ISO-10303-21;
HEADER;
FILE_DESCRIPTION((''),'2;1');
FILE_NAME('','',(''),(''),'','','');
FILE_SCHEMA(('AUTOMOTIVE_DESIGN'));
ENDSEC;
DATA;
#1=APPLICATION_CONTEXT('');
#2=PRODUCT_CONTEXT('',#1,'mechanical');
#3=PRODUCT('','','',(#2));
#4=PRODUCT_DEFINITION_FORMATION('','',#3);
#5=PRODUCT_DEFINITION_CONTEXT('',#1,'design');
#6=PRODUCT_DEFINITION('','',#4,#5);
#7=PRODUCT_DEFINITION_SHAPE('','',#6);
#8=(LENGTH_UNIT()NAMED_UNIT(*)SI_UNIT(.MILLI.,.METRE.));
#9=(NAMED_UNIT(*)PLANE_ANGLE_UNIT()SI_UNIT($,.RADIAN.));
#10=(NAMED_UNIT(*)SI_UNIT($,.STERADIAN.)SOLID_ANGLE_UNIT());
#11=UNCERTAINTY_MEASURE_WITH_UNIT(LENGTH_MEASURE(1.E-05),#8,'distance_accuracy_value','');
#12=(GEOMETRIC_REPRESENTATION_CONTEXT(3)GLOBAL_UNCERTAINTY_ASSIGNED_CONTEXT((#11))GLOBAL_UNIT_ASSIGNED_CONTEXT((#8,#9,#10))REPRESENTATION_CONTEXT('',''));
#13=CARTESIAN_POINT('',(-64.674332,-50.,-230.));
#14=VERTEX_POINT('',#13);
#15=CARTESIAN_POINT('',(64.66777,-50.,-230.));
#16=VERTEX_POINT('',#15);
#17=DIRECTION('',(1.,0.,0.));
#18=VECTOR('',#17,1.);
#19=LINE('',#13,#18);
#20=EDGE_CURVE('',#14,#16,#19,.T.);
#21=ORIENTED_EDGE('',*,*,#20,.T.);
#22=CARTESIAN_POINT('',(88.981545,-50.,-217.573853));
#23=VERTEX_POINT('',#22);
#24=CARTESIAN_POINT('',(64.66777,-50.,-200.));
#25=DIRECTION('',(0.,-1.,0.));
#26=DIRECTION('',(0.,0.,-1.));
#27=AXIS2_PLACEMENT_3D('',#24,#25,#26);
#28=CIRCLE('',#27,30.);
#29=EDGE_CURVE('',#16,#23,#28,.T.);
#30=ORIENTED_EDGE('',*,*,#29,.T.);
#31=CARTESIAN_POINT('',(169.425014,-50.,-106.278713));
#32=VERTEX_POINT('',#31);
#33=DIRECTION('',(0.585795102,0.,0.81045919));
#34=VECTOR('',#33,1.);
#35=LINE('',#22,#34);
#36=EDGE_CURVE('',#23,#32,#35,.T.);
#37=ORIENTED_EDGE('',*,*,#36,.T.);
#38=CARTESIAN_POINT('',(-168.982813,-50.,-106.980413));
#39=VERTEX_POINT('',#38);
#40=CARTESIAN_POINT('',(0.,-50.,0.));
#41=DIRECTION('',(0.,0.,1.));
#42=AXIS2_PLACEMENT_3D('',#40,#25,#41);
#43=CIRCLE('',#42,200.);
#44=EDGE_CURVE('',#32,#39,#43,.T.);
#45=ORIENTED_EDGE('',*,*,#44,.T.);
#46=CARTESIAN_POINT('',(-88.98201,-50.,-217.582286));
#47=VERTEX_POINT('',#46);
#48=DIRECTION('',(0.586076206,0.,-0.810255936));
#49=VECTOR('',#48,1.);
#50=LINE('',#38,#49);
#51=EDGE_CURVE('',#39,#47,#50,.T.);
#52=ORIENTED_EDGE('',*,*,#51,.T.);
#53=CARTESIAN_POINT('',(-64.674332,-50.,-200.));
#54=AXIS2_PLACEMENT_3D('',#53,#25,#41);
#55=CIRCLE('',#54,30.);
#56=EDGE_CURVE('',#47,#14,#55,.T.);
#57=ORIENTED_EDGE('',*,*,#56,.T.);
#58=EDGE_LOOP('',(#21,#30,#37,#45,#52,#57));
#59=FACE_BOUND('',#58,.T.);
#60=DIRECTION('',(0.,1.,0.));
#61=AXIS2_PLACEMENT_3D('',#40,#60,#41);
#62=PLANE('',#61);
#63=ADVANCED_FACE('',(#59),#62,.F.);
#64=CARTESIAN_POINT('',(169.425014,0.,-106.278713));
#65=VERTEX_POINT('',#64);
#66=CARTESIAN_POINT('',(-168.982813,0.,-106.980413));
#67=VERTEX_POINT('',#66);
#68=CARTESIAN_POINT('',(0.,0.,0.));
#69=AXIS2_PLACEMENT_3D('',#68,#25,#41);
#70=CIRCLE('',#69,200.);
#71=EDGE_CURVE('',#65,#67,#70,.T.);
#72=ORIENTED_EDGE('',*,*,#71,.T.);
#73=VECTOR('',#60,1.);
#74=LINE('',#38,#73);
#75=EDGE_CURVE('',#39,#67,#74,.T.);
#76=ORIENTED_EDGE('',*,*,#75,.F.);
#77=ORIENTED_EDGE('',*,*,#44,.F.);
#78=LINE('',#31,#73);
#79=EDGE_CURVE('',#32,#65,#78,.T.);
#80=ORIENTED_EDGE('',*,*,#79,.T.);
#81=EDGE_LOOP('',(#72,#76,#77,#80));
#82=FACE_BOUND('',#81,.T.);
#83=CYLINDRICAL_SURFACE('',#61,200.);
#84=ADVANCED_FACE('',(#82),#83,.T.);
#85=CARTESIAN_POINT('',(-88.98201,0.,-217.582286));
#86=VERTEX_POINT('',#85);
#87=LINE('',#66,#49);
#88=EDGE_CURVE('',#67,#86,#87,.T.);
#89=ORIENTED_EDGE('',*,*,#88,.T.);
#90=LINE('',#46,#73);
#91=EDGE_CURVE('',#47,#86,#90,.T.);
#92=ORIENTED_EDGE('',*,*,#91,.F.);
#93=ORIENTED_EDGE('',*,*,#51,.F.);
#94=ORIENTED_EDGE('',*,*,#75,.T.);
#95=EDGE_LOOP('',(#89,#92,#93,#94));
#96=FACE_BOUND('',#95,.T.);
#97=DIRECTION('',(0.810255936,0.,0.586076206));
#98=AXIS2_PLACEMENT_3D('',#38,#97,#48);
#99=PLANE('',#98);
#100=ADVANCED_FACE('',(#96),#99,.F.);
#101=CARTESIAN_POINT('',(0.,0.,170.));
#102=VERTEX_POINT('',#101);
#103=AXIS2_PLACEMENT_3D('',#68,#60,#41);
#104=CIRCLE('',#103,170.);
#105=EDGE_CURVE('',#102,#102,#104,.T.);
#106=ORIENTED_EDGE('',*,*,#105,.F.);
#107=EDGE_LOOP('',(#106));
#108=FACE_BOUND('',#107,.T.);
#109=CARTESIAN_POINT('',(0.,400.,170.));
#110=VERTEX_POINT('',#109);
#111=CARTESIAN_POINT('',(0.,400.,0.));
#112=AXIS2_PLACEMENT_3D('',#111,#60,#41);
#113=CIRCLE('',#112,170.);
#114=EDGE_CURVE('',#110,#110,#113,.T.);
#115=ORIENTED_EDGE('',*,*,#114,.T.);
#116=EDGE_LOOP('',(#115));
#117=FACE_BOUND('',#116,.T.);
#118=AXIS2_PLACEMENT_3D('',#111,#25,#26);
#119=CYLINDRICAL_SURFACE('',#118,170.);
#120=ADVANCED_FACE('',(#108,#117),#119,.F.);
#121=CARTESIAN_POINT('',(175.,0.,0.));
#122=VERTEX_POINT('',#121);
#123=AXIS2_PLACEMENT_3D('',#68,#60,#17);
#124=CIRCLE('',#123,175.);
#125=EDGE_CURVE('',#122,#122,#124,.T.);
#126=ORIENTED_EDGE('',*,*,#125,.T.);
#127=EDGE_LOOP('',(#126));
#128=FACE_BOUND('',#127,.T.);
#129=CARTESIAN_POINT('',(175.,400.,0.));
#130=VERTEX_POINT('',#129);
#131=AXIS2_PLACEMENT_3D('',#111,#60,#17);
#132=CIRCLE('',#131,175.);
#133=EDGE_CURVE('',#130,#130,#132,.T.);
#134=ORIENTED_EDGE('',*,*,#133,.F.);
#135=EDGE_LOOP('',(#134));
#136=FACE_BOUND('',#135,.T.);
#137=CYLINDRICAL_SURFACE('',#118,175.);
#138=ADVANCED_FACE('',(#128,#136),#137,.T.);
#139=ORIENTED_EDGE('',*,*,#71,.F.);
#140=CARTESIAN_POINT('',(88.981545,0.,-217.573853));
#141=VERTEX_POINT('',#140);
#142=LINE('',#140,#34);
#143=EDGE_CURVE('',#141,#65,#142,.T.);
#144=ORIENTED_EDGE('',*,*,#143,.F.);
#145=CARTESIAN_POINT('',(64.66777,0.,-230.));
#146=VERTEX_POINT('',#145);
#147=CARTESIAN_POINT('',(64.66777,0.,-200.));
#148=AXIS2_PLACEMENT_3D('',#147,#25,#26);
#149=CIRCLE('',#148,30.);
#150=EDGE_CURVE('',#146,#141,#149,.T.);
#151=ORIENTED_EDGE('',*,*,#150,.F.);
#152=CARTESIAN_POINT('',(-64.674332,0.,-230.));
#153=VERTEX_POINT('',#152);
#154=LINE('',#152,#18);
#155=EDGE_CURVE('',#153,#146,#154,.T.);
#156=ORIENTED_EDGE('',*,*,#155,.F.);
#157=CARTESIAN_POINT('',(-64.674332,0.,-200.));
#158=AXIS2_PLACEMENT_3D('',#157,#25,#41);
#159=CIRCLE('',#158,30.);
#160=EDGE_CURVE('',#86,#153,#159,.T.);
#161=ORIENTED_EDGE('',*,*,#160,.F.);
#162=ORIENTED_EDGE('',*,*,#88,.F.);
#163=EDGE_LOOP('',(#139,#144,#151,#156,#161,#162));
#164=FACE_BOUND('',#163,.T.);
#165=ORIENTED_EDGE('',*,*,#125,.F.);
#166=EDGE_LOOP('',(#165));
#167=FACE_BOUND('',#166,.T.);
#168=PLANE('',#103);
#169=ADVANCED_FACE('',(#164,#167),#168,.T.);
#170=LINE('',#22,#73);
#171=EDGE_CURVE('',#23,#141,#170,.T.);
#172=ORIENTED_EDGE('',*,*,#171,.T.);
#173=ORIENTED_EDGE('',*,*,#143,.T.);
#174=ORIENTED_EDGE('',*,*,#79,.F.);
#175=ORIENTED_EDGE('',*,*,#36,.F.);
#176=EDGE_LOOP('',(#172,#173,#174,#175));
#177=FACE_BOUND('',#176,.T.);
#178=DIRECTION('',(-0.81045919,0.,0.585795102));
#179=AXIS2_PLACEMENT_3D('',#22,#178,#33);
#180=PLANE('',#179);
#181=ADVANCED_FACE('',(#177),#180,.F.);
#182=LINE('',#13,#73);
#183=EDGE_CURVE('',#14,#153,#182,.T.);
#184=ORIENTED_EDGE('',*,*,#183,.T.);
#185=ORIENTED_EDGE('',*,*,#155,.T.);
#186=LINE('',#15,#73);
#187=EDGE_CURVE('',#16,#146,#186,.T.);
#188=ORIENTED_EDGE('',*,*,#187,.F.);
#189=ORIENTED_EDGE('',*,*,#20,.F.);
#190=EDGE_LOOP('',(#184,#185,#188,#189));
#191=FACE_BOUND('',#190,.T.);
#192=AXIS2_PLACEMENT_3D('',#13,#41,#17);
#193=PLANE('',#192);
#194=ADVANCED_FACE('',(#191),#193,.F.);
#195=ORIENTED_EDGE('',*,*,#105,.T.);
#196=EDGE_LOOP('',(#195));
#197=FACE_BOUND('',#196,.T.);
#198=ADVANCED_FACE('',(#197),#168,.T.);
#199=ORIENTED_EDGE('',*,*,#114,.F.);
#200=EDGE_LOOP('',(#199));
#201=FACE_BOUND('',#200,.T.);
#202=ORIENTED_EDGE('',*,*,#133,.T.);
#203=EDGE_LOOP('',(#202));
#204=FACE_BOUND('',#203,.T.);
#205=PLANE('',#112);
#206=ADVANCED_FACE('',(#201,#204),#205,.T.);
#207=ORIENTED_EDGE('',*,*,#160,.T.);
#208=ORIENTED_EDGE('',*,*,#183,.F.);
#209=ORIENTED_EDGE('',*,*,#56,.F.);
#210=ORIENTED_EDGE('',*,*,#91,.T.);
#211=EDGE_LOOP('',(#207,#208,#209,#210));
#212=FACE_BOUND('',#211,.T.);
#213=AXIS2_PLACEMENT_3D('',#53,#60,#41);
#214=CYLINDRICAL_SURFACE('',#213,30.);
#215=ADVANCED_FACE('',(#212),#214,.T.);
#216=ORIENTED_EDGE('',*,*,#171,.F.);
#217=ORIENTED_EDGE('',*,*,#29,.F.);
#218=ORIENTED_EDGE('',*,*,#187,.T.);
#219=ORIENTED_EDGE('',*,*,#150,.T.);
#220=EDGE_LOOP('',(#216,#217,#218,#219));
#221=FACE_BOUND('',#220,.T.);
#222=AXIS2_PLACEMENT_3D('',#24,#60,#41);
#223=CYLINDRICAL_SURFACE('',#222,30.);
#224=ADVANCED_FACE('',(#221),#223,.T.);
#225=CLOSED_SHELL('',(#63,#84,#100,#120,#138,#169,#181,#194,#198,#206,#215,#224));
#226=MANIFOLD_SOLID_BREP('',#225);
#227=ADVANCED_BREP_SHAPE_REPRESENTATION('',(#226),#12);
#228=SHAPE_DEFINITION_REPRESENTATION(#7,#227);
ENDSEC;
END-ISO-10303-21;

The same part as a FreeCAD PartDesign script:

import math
import FreeCAD as App
import Part
import Sketcher

V = App.Vector
Q = App.Units.Quantity

doc = App.newDocument("Part")
params = doc.addObject("Spreadsheet::Sheet", "Params")
for row, (alias, value) in enumerate([
    ("sketch1_diameter", "350 mm"),
    ("sketch1_diameter2", "340 mm"),
    ("pad1_length", "400 mm"),
    ("sketch2_radius", "30 mm"),
    ("sketch2_radius2", "200 mm"),
    ("pad2_length", "50 mm"),
], start=1):
    params.set(f"A{row}", alias)
    params.set(f"B{row}", "=" + value)
    params.setAlias(f"B{row}", alias)

body = doc.addObject("PartDesign::Body", "Body")

# Sketch on XZ plane
sketch1 = doc.addObject("Sketcher::SketchObject", "Sketch")
body.addObject(sketch1)
sketch1.AttachmentSupport = (doc.XZ_Plane, [""])
sketch1.MapMode = "FlatFace"
sketch1.addGeometry(Part.Circle(V(0, 0, 0), V(0, 0, 1), 175), False)
sketch1.addGeometry(Part.Circle(V(0, 0, 0), V(0, 0, 1), 170), False)
sketch1.addConstraint(Sketcher.Constraint("Coincident", 0, 3, -1, 1))
sketch1.addConstraint(Sketcher.Constraint("Coincident", 1, 3, -1, 1))
sketch1.addConstraint(Sketcher.Constraint("Diameter", 0, Q("350 mm")))
sketch1.addConstraint(Sketcher.Constraint("Diameter", 1, Q("340 mm")))
sketch1.setExpression("Constraints[2]", "Params.sketch1_diameter")
sketch1.setExpression("Constraints[3]", "Params.sketch1_diameter2")
pad1 = doc.addObject("PartDesign::Pad", "Pad")
body.addObject(pad1)
pad1.Profile = sketch1
pad1.setExpression("Length", "Params.pad1_length")
pad1.Reversed = True

# Sketch on XZ plane
sketch2 = doc.addObject("Sketcher::SketchObject", "Sketch001")
body.addObject(sketch2)
sketch2.AttachmentSupport = (doc.XZ_Plane, [""])
sketch2.MapMode = "FlatFace"
sketch2.addGeometry(Part.LineSegment(V(-65, -230, 0), V(65, -230, 0)), False)
sketch2.addGeometry(Part.ArcOfCircle(Part.Circle(V(65, -200, 0), V(0, 0, 1), 30), math.radians(-90), math.radians(-36)), False)
sketch2.addGeometry(Part.LineSegment(V(89, -218, 0), V(169, -106, 0)), False)
sketch2.addGeometry(Part.ArcOfCircle(Part.Circle(V(0, 0, 0), V(0, 0, 1), 200), math.radians(-32), math.radians(212)), False)
sketch2.addGeometry(Part.LineSegment(V(-169, -107, 0), V(-89, -218, 0)), False)
sketch2.addGeometry(Part.ArcOfCircle(Part.Circle(V(-65, -200, 0), V(0, 0, 1), 30), math.radians(-144), math.radians(-90)), False)
sketch2.addConstraint(Sketcher.Constraint("Tangent", 0, 2, 1, 1))
sketch2.addConstraint(Sketcher.Constraint("Tangent", 1, 2, 2, 1))
sketch2.addConstraint(Sketcher.Constraint("Coincident", 2, 2, 3, 1))
sketch2.addConstraint(Sketcher.Constraint("Coincident", 3, 2, 4, 1))
sketch2.addConstraint(Sketcher.Constraint("Tangent", 4, 2, 5, 1))
sketch2.addConstraint(Sketcher.Constraint("Tangent", 5, 2, 0, 1))
sketch2.addConstraint(Sketcher.Constraint("Horizontal", 0))
sketch2.addConstraint(Sketcher.Constraint("Coincident", 3, 3, -1, 1))
sketch2.addConstraint(Sketcher.Constraint("Equal", 1, 5))
sketch2.addConstraint(Sketcher.Constraint("Radius", 1, Q("30 mm")))
sketch2.addConstraint(Sketcher.Constraint("Radius", 3, Q("200 mm")))
sketch2.addConstraint(Sketcher.Constraint("DistanceY", 1, 3, -1, 1, Q("200 mm")))
sketch2.addConstraint(Sketcher.Constraint("DistanceX", 0, 1, 0, 2, Q("129.342101 mm")))
sketch2.addConstraint(Sketcher.Constraint("Distance", 2, Q("137.323559 mm")))
sketch2.addConstraint(Sketcher.Constraint("Distance", 4, Q("136.502392 mm")))
sketch2.addConstraint(Sketcher.Constraint("DistanceX", -1, 1, 1, 3, Q("64.66777 mm")))
sketch2.setExpression("Constraints[9]", "Params.sketch2_radius")
sketch2.setExpression("Constraints[10]", "Params.sketch2_radius2")
pad2 = doc.addObject("PartDesign::Pad", "Pad001")
body.addObject(pad2)
pad2.Profile = sketch2
pad2.setExpression("Length", "Params.pad2_length")

doc.recompute()
